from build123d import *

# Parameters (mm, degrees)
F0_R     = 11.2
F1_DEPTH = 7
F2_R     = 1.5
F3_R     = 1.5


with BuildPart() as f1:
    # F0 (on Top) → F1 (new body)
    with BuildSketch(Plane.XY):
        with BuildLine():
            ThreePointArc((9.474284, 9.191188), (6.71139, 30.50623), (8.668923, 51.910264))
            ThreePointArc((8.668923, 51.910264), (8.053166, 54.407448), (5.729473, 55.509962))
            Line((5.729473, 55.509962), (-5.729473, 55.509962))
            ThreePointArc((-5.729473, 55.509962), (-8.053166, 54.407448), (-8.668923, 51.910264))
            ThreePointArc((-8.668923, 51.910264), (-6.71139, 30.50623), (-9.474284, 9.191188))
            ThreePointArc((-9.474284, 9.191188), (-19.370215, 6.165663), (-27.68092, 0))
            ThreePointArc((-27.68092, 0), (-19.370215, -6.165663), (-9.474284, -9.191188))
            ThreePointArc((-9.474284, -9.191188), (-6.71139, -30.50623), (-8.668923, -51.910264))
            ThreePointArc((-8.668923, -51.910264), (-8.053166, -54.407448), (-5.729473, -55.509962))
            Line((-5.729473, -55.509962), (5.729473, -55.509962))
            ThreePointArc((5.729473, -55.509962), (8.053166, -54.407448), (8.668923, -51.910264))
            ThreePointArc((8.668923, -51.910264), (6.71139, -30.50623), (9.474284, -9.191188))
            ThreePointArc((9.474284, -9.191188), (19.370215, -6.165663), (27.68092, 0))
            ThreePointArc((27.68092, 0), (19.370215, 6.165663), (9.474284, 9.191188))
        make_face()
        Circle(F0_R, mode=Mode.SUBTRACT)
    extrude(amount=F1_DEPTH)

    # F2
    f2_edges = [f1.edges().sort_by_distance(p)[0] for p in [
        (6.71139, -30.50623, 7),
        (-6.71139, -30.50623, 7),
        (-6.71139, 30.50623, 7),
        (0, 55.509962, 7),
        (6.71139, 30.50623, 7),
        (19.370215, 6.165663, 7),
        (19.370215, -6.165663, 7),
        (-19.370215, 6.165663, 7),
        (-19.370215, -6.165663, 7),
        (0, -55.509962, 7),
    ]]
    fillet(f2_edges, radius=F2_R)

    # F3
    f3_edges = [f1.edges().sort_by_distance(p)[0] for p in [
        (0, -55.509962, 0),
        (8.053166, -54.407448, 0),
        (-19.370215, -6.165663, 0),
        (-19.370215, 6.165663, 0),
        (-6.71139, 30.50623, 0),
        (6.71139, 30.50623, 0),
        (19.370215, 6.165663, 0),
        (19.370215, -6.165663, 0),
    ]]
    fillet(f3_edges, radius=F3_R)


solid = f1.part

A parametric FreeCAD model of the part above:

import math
import FreeCAD as App
import Part
import Sketcher
from FreeCAD import Vector
Q = App.Units.Quantity


def edges_at(feature, points):
    """Names of the edges that pass closest to the given points."""
    edges = feature.Shape.Edges
    near = lambda p: min(range(len(edges)), key=lambda i: edges[i].distToShape(Part.Vertex(*p))[0])
    return sorted({f"Edge{near(p) + 1}" for p in points})

doc = App.newDocument("Part")
body = doc.addObject("PartDesign::Body", "Body")

sketch1 = doc.addObject("Sketcher::SketchObject", "Sketch")
body.addObject(sketch1)
sketch1.AttachmentSupport = (doc.XY_Plane, [""])
sketch1.MapMode = "FlatFace"
sketch1.addGeometry(Part.ArcOfCircle(Part.Circle(Vector(104.5, 32.4, 0), Vector(0, 0, 1), 97.8), math.radians(168), math.radians(194)), False)
sketch1.addGeometry(Part.ArcOfCircle(Part.Circle(Vector(5.7, 52.5, 0), Vector(0, 0, 1), 3), math.radians(-12), math.radians(90)), False)
sketch1.addGeometry(Part.LineSegment(Vector(5.7, 55.5, 0), Vector(-5.7, 55.5, 0)), False)
sketch1.addGeometry(Part.ArcOfCircle(Part.Circle(Vector(-5.7, 52.5, 0), Vector(0, 0, 1), 3), math.radians(90), math.radians(192)), False)
sketch1.addGeometry(Part.ArcOfCircle(Part.Circle(Vector(-104.5, 32.4, 0), Vector(0, 0, 1), 97.8), math.radians(-14), math.radians(12)), False)
sketch1.addGeometry(Part.ArcOfCircle(Part.Circle(Vector(-5.7, -21, 0), Vector(0, 0, 1), 30.4), math.radians(97), math.radians(136)), False)
sketch1.addGeometry(Part.ArcOfCircle(Part.Circle(Vector(-5.7, 21, 0), Vector(0, 0, 1), 30.4), math.radians(-136), math.radians(-97)), False)
sketch1.addGeometry(Part.ArcOfCircle(Part.Circle(Vector(-104.5, -32.4, 0), Vector(0, 0, 1), 97.8), math.radians(-12), math.radians(14)), False)
sketch1.addGeometry(Part.ArcOfCircle(Part.Circle(Vector(-5.7, -52.5, 0), Vector(0, 0, 1), 3), math.radians(168), math.radians(270)), False)
sketch1.addGeometry(Part.LineSegment(Vector(-5.7, -55.5, 0), Vector(5.7, -55.5, 0)), False)
sketch1.addGeometry(Part.ArcOfCircle(Part.Circle(Vector(5.7, -52.5, 0), Vector(0, 0, 1), 3), math.radians(-90), math.radians(12)), False)
sketch1.addGeometry(Part.ArcOfCircle(Part.Circle(Vector(104.5, -32.4, 0), Vector(0, 0, 1), 97.8), math.radians(166), math.radians(192)), False)
sketch1.addGeometry(Part.ArcOfCircle(Part.Circle(Vector(5.7, 21, 0), Vector(0, 0, 1), 30.4), math.radians(-83), math.radians(-44)), False)
sketch1.addGeometry(Part.ArcOfCircle(Part.Circle(Vector(5.7, -21, 0), Vector(0, 0, 1), 30.4), math.radians(44), math.radians(83)), False)
sketch1.addGeometry(Part.Circle(Vector(0, 0, 0), Vector(0, 0, 1), 11.2), False)
sketch1.addConstraint(Sketcher.Constraint("Tangent", 0, 1, 1, 1))
sketch1.addConstraint(Sketcher.Constraint("Tangent", 1, 2, 2, 1))
sketch1.addConstraint(Sketcher.Constraint("Tangent", 2, 2, 3, 1))
sketch1.addConstraint(Sketcher.Constraint("Tangent", 3, 2, 4, 2))
sketch1.addConstraint(Sketcher.Constraint("Coincident", 4, 1, 5, 1))
sketch1.addConstraint(Sketcher.Constraint("Coincident", 5, 2, 6, 1))
sketch1.addConstraint(Sketcher.Constraint("Coincident", 6, 2, 7, 2))
sketch1.addConstraint(Sketcher.Constraint("Tangent", 7, 1, 8, 1))
sketch1.addConstraint(Sketcher.Constraint("Tangent", 8, 2, 9, 1))
sketch1.addConstraint(Sketcher.Constraint("Tangent", 9, 2, 10, 1))
sketch1.addConstraint(Sketcher.Constraint("Tangent", 10, 2, 11, 2))
sketch1.addConstraint(Sketcher.Constraint("Coincident", 11, 1, 12, 1))
sketch1.addConstraint(Sketcher.Constraint("Coincident", 12, 2, 13, 1))
sketch1.addConstraint(Sketcher.Constraint("Coincident", 13, 2, 0, 2))
sketch1.addConstraint(Sketcher.Constraint("Horizontal", 2))
sketch1.addConstraint(Sketcher.Constraint("Horizontal", 9))
sketch1.addConstraint(Sketcher.Constraint("Coincident", 14, 3, -1, 1))
sketch1.addConstraint(Sketcher.Constraint("Equal", 1, 3))
sketch1.addConstraint(Sketcher.Constraint("Equal", 0, 4))
sketch1.addConstraint(Sketcher.Constraint("Equal", 5, 6))
sketch1.addConstraint(Sketcher.Constraint("Equal", 4, 7))
sketch1.addConstraint(Sketcher.Constraint("Equal", 3, 8))
sketch1.addConstraint(Sketcher.Constraint("Equal", 8, 10))
sketch1.addConstraint(Sketcher.Constraint("Equal", 7, 11))
sketch1.addConstraint(Sketcher.Constraint("Equal", 6, 12))
sketch1.addConstraint(Sketcher.Constraint("Equal", 12, 13))
sketch1.addConstraint(Sketcher.Constraint("Symmetric", 0, 3, 7, 3, -1, 1))
sketch1.addConstraint(Sketcher.Constraint("Symmetric", 3, 3, 10, 3, -1, 1))
sketch1.addConstraint(Sketcher.Constraint("Symmetric", 5, 3, 12, 3, -1, 1))
sketch1.addConstraint(Sketcher.Constraint("Symmetric", 6, 3, 13, 3, -1, 1))
sketch1.addConstraint(Sketcher.Constraint("Symmetric", 0, 3, 4, 3, -2))
sketch1.addConstraint(Sketcher.Constraint("Symmetric", 6, 3, 12, 3, -2))
sketch1.addConstraint(Sketcher.Constraint("Horizontal", 7, 3, 11, 3))
sketch1.addConstraint(Sketcher.Constraint("Radius", 1, Q("3 mm")))
sketch1.addConstraint(Sketcher.Constraint("Diameter", 14, Q("22.4 mm")))
sketch1.addConstraint(Sketcher.Constraint("Radius", 0, Q("97.847616 mm")))
sketch1.addConstraint(Sketcher.Constraint("Radius", 5, Q("30.442255 mm")))
sketch1.addConstraint(Sketcher.Constraint("DistanceX", 5, 3, -1, 1, Q("5.6512 mm")))
sketch1.addConstraint(Sketcher.Constraint("DistanceY", 3, 2, 2, 2, Q("3.599698 mm")))
sketch1.addConstraint(Sketcher.Constraint("DistanceX", 2, 2, 2, 1, Q("11.458946 mm")))
sketch1.addConstraint(Sketcher.Constraint("DistanceY", -1, 1, 1, 3, Q("52.509962 mm")))
sketch1.addConstraint(Sketcher.Constraint("DistanceY", 5, 3, -1, 1, Q("21.010052 mm")))
pad1 = doc.addObject("PartDesign::Pad", "Pad")
body.addObject(pad1)
pad1.Profile = sketch1
pad1.Length = 7
doc.recompute()

fillet = doc.addObject("PartDesign::Fillet", "Fillet")
body.addObject(fillet)
fillet.Base = (pad1, edges_at(pad1, [
    (6.711, -30.506, 7),
    (-6.711, -30.506, 7),
    (-6.711, 30.506, 7),
    (0, 55.51, 7),
    (6.711, 30.506, 7),
    (19.37, 6.166, 7),
    (19.37, -6.166, 7),
    (-19.37, 6.166, 7),
    (-19.37, -6.166, 7),
    (0, -55.51, 7),
]))
fillet.Radius = 1.5
doc.recompute()

fillet2 = doc.addObject("PartDesign::Fillet", "Fillet001")
body.addObject(fillet2)
fillet2.Base = (fillet, edges_at(fillet, [
    (0, -55.51, 0),
    (8.053, -54.407, 0),
    (-19.37, -6.166, 0),
    (-19.37, 6.166, 0),
    (-6.711, 30.506, 0),
    (6.711, 30.506, 0),
    (19.37, 6.166, 0),
    (19.37, -6.166, 0),
]))
fillet2.Radius = 1.5

doc.recompute()
